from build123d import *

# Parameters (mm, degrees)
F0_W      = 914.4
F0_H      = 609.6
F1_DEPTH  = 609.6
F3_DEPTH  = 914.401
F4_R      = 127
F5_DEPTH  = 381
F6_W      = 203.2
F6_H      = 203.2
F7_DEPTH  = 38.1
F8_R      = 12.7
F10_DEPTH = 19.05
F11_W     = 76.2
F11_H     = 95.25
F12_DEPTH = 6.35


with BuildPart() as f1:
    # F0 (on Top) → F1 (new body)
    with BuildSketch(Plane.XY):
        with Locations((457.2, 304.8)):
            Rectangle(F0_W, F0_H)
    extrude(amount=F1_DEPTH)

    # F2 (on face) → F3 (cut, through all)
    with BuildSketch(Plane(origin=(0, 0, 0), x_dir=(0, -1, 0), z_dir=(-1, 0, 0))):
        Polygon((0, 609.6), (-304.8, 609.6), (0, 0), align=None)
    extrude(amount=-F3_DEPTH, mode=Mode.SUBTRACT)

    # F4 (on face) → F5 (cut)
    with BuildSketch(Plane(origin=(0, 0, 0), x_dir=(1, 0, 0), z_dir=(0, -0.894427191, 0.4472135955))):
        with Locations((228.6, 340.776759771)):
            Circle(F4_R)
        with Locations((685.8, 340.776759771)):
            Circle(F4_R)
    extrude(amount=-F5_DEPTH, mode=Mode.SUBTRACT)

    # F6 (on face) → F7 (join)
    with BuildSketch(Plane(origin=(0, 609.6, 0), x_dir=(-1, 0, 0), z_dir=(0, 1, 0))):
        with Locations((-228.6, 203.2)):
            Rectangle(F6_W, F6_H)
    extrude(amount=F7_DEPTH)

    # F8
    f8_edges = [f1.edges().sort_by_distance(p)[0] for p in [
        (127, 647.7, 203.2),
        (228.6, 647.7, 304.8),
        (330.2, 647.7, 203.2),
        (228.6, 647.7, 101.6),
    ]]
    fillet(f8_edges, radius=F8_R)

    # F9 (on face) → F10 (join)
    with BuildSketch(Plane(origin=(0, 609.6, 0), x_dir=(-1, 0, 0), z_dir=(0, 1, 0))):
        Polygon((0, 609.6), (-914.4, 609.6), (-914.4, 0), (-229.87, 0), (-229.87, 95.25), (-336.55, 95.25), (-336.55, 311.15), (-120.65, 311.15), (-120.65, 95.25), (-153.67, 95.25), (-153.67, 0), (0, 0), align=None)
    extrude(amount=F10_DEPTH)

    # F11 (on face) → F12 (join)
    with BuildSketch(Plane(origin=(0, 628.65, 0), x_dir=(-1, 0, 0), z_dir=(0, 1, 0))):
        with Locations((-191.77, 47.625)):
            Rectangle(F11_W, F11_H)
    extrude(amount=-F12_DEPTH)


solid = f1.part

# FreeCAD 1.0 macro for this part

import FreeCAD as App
import Part
import Sketcher

V = App.Vector
Q = App.Units.Quantity


def edges_at(feature, points):
    """Names of the edges that pass closest to the given points."""
    edges = feature.Shape.Edges
    near = lambda p: min(range(len(edges)), key=lambda i: edges[i].distToShape(Part.Vertex(*p))[0])
    return sorted({f"Edge{near(p) + 1}" for p in points})


def add_polygon(sketch, points):
    """Adds a closed chain of lines whose ends are joined by coincident constraints."""
    first, n = sketch.GeometryCount, len(points)
    for a, b in zip(points, points[1:] + points[:1]):
        sketch.addGeometry(Part.LineSegment(App.Vector(*a, 0), App.Vector(*b, 0)), False)
    for i in range(n):
        sketch.addConstraint(Sketcher.Constraint("Coincident", first + i, 2, first + (i + 1) % n, 1))

doc = App.newDocument("Part")
params = doc.addObject("Spreadsheet::Sheet", "Params")
for row, (alias, value) in enumerate([
    ("sketch1_width", "36 in"),
    ("sketch1_height", "24 in"),
    ("pad1_length", "24 in"),
    ("sketch2_width", "12 in"),
    ("sketch2_height", "24 in"),
    ("sketch3_diameter", "10 in"),
    ("pocket2_length", "15 in"),
    ("sketch4_width", "8 in"),
    ("pad2_length", "1.5 in"),
    ("fillet_radius", "0.5 in"),
    ("sketch5_width", "36 in"),
    ("sketch5_height", "24 in"),
    ("sketch5_width2", "4.2 in"),
    ("sketch5_width3", "8.5 in"),
    ("sketch5_width4", "1.3 in"),
    ("pad3_length", "0.75 in"),
    ("sketch6_width", "3 in"),
    ("sketch6_height", "3.75 in"),
    ("pad4_length", "0.25 in"),
], start=1):
    params.set(f"A{row}", alias)
    params.set(f"B{row}", "=" + value)
    params.setAlias(f"B{row}", alias)

body = doc.addObject("PartDesign::Body", "Body")

sketch1 = body.newObject("Sketcher::SketchObject", "Sketch")
sketch1.AttachmentSupport = (doc.getObject("XY_Plane"), [""])
sketch1.MapMode = "FlatFace"
add_polygon(sketch1, [(0, 609.6), (0, 0), (914.4, 0), (914.4, 609.6)])
sketch1.addConstraint([
    Sketcher.Constraint("Vertical", 0),
    Sketcher.Constraint("Horizontal", 1),
    Sketcher.Constraint("Vertical", 2),
    Sketcher.Constraint("Horizontal", 3),
    Sketcher.Constraint("Coincident", 0, 2, -1, 1),
    Sketcher.Constraint("DistanceX", 1, 1, 1, 2, Q("36 in")),
    Sketcher.Constraint("DistanceY", 0, 2, 0, 1, Q("24 in")),
])
sketch1.setExpression("Constraints[9]", "Params.sketch1_width")
sketch1.setExpression("Constraints[10]", "Params.sketch1_height")
pad1 = body.newObject("PartDesign::Pad", "Pad")
pad1.Profile = sketch1
pad1.setExpression("Length", "Params.pad1_length")

sketch2 = body.newObject("Sketcher::SketchObject", "Sketch001")
sketch2.AttachmentSupport = (doc.getObject("YZ_Plane"), [""])
sketch2.MapMode = "FlatFace"
add_polygon(sketch2, [(0, 609.6), (304.8, 609.6), (0, 0)])
sketch2.addConstraint([
    Sketcher.Constraint("Horizontal", 0),
    Sketcher.Constraint("Vertical", 2),
    Sketcher.Constraint("Coincident", 1, 2, -1, 1),
    Sketcher.Constraint("DistanceX", 0, 1, 0, 2, Q("12 in")),
    Sketcher.Constraint("DistanceY", 2, 1, 2, 2, Q("24 in")),
])
sketch2.setExpression("Constraints[6]", "Params.sketch2_width")
sketch2.setExpression("Constraints[7]", "Params.sketch2_height")
pocket1 = body.newObject("PartDesign::Pocket", "Pocket")
pocket1.Profile = sketch2
pocket1.Type = "ThroughAll"
pocket1.Reversed = True

sketch3 = body.newObject("Sketcher::SketchObject", "Sketch002")
sketch3.Placement = App.Placement(V(0, 0, 0), App.Rotation(V(1, 0, 0), V(0, 0.447213595, 0.894427191), V(0, -0.894427191, 0.447213595), "ZXY"))
sketch3.addGeometry([
    Part.Circle(V(228.6, 340.77676, 0), V(0, 0, 1), 127),
    Part.Circle(V(685.8, 340.77676, 0), V(0, 0, 1), 127),
], False)
sketch3.addConstraint([
    Sketcher.Constraint("Equal", 0, 1),
    Sketcher.Constraint("Horizontal", 0, 3, 1, 3),
    Sketcher.Constraint("Diameter", 0, Q("10 in")),
    Sketcher.Constraint("DistanceX", -1, 1, 0, 3, Q("9 in")),
    Sketcher.Constraint("DistanceX", -1, 1, 1, 3, Q("27 in")),
    Sketcher.Constraint("DistanceY", -1, 1, 0, 3, 340.77676),
])
sketch3.setExpression("Constraints[2]", "Params.sketch3_diameter")
pocket2 = body.newObject("PartDesign::Pocket", "Pocket001")
pocket2.Profile = sketch3
pocket2.setExpression("Length", "Params.pocket2_length")

sketch4 = body.newObject("Sketcher::SketchObject", "Sketch003")
sketch4.AttachmentSupport = (doc.getObject("XZ_Plane"), [""])
sketch4.MapMode = "FlatFace"
sketch4.AttachmentOffset = App.Placement(V(0, 0, -24 * 25.4), App.Rotation())
add_polygon(sketch4, [(330.2, 304.8), (330.2, 101.6), (127, 101.6), (127, 304.8)])
sketch4.addConstraint([
    Sketcher.Constraint("Vertical", 0),
    Sketcher.Constraint("Horizontal", 1),
    Sketcher.Constraint("Vertical", 2),
    Sketcher.Constraint("Horizontal", 3),
    Sketcher.Constraint("Equal", 3, 0),
    Sketcher.Constraint("DistanceX", 1, 2, 1, 1, Q("8 in")),
    Sketcher.Constraint("DistanceX", -1, 1, 0, 2, Q("13 in")),
    Sketcher.Constraint("DistanceY", -1, 1, 0, 2, Q("4 in")),
])
sketch4.setExpression("Constraints[9]", "Params.sketch4_width")
pad2 = body.newObject("PartDesign::Pad", "Pad001")
pad2.Profile = sketch4
pad2.setExpression("Length", "Params.pad2_length")
pad2.Reversed = True
doc.recompute()

fillet = body.newObject("PartDesign::Fillet", "Fillet")
fillet.Base = (pad2, edges_at(pad2, [
    (127, 647.7, 203.2),
    (228.6, 647.7, 304.8),
    (330.2, 647.7, 203.2),
    (228.6, 647.7, 101.6),
]))
fillet.setExpression("Radius", "Params.fillet_radius")

sketch5 = body.newObject("Sketcher::SketchObject", "Sketch004")
sketch5.AttachmentSupport = (doc.getObject("XZ_Plane"), [""])
sketch5.MapMode = "FlatFace"
sketch5.AttachmentOffset = App.Placement(V(0, 0, -24 * 25.4), App.Rotation())
add_polygon(sketch5, [(0, 609.6), (914.4, 609.6), (914.4, 0), (229.87, 0), (229.87, 95.25), (336.55, 95.25), (336.55, 311.15), (120.65, 311.15), (120.65, 95.25), (153.67, 95.25), (153.67, 0), (0, 0)])
sketch5.addConstraint([
    Sketcher.Constraint("Horizontal", 0),
    Sketcher.Constraint("Vertical", 1),
    Sketcher.Constraint("Horizontal", 2),
    Sketcher.Constraint("Vertical", 3),
    Sketcher.Constraint("Horizontal", 4),
    Sketcher.Constraint("Vertical", 5),
    Sketcher.Constraint("Horizontal", 6),
    Sketcher.Constraint("Vertical", 7),
    Sketcher.Constraint("Horizontal", 8),
    Sketcher.Constraint("Vertical", 9),
    Sketcher.Constraint("Horizontal", 10),
    Sketcher.Constraint("Vertical", 11),
    Sketcher.Constraint("Coincident", 10, 2, -1, 1),
    Sketcher.Constraint("PointOnObject", 1, 2, -1),
    Sketcher.Constraint("Horizontal", 4, 2, 7, 2),
    Sketcher.Constraint("Equal", 6, 5),
    Sketcher.Constraint("DistanceX", 0, 1, 0, 2, Q("36 in")),
    Sketcher.Constraint("DistanceY", 1, 2, 1, 1, Q("24 in")),
    Sketcher.Constraint("DistanceX", 4, 1, 4, 2, Q("4.2 in")),
    Sketcher.Constraint("DistanceX", 6, 2, 6, 1, Q("8.5 in")),
    Sketcher.Constraint("DistanceX", 8, 1, 8, 2, Q("1.3 in")),
    Sketcher.Constraint("DistanceX", 2, 2, 2, 1, Q("26.95 in")),
    Sketcher.Constraint("DistanceY", 3, 1, 3, 2, Q("3.75 in")),
])
sketch5.setExpression("Constraints[28]", "Params.sketch5_width")
sketch5.setExpression("Constraints[29]", "Params.sketch5_height")
sketch5.setExpression("Constraints[30]", "Params.sketch5_width2")
sketch5.setExpression("Constraints[31]", "Params.sketch5_width3")
sketch5.setExpression("Constraints[32]", "Params.sketch5_width4")
pad3 = body.newObject("PartDesign::Pad", "Pad002")
pad3.Profile = sketch5
pad3.setExpression("Length", "Params.pad3_length")
pad3.Reversed = True

sketch6 = body.newObject("Sketcher::SketchObject", "Sketch005")
sketch6.AttachmentSupport = (doc.getObject("XZ_Plane"), [""])
sketch6.MapMode = "FlatFace"
sketch6.AttachmentOffset = App.Placement(V(0, 0, -24.75 * 25.4), App.Rotation())
add_polygon(sketch6, [(229.87, 95.25), (229.87, 0), (153.67, 0), (153.67, 95.25)])
sketch6.addConstraint([
    Sketcher.Constraint("Vertical", 0),
    Sketcher.Constraint("Horizontal", 1),
    Sketcher.Constraint("Vertical", 2),
    Sketcher.Constraint("Horizontal", 3),
    Sketcher.Constraint("PointOnObject", 0, 2, -1),
    Sketcher.Constraint("DistanceX", 1, 2, 1, 1, Q("3 in")),
    Sketcher.Constraint("DistanceY", 0, 2, 0, 1, Q("3.75 in")),
    Sketcher.Constraint("DistanceX", -1, 1, 0, 2, Q("9.05 in")),
])
sketch6.setExpression("Constraints[9]", "Params.sketch6_width")
sketch6.setExpression("Constraints[10]", "Params.sketch6_height")
pad4 = body.newObject("PartDesign::Pad", "Pad003")
pad4.Profile = sketch6
pad4.setExpression("Length", "Params.pad4_length")

doc.recompute()
